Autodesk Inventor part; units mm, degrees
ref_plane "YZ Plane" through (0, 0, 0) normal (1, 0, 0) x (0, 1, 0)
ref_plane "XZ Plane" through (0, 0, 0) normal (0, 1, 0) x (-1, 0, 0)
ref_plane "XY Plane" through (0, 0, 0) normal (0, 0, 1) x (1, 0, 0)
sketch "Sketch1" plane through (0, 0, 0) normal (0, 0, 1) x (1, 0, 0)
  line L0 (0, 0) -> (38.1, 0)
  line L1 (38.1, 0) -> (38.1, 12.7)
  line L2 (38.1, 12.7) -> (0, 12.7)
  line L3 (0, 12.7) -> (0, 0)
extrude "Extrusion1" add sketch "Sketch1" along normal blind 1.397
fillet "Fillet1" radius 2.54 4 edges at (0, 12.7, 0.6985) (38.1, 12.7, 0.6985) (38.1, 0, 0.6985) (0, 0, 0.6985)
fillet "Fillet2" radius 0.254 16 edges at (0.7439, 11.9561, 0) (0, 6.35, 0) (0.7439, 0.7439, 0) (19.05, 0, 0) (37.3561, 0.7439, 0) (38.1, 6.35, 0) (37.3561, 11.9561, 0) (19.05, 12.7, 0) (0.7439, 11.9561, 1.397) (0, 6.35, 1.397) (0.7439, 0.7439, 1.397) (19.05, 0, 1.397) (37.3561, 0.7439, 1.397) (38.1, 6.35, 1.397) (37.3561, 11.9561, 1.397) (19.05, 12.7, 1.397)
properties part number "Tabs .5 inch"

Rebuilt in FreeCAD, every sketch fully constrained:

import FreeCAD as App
import Part
import Sketcher

V = App.Vector
Q = App.Units.Quantity


def edges_at(feature, points):
    """Names of the edges that pass closest to the given points."""
    edges = feature.Shape.Edges
    near = lambda p: min(range(len(edges)), key=lambda i: edges[i].distToShape(Part.Vertex(*p))[0])
    return sorted({f"Edge{near(p) + 1}" for p in points})

doc = App.newDocument("Part")
params = doc.addObject("Spreadsheet::Sheet", "Params")
for row, (alias, value) in enumerate([
    ("sketch1_width", "1.5 in"),
    ("sketch1_height", "0.5 in"),
    ("pad1_length", "0.055 in"),
    ("fillet_radius", "0.1 in"),
    ("fillet2_radius", "0.01 in"),
], start=1):
    params.set(f"A{row}", alias)
    params.set(f"B{row}", "=" + value)
    params.setAlias(f"B{row}", alias)

body = doc.addObject("PartDesign::Body", "Body")

sketch1 = body.newObject("Sketcher::SketchObject", "Sketch")
sketch1.AttachmentSupport = (doc.getObject("XY_Plane"), [""])
sketch1.MapMode = "FlatFace"
sketch1.addGeometry([
    Part.LineSegment(V(0, 13, 0), V(0, 0, 0)),
    Part.LineSegment(V(0, 0, 0), V(38, 0, 0)),
    Part.LineSegment(V(38, 0, 0), V(38, 13, 0)),
    Part.LineSegment(V(38, 13, 0), V(0, 13, 0)),
], False)
sketch1.addConstraint([
    Sketcher.Constraint("Coincident", 0, 2, 1, 1),
    Sketcher.Constraint("Coincident", 1, 2, 2, 1),
    Sketcher.Constraint("Coincident", 2, 2, 3, 1),
    Sketcher.Constraint("Coincident", 3, 2, 0, 1),
    Sketcher.Constraint("Vertical", 0),
    Sketcher.Constraint("Horizontal", 1),
    Sketcher.Constraint("Vertical", 2),
    Sketcher.Constraint("Horizontal", 3),
    Sketcher.Constraint("Coincident", 0, 2, -1, 1),
    Sketcher.Constraint("DistanceX", 1, 1, 1, 2, Q("1.5 in")),
    Sketcher.Constraint("DistanceY", 0, 2, 0, 1, Q("0.5 in")),
])
sketch1.setExpression("Constraints[9]", "Params.sketch1_width")
sketch1.setExpression("Constraints[10]", "Params.sketch1_height")
pad1 = body.newObject("PartDesign::Pad", "Pad")
pad1.Profile = sketch1
pad1.setExpression("Length", "Params.pad1_length")
doc.recompute()

fillet = body.newObject("PartDesign::Fillet", "Fillet")
fillet.Base = (pad1, edges_at(pad1, [
    (0, 12.7, 0.699),
    (38.1, 12.7, 0.699),
    (38.1, 0, 0.699),
    (0, 0, 0.699),
]))
fillet.setExpression("Radius", "Params.fillet_radius")
doc.recompute()

fillet2 = body.newObject("PartDesign::Fillet", "Fillet001")
fillet2.Base = (fillet, edges_at(fillet, [
    (0.744, 11.956, 0),
    (0, 6.35, 0),
    (0.744, 0.744, 0),
    (19.05, 0, 0),
    (37.356, 0.744, 0),
    (38.1, 6.35, 0),
    (37.356, 11.956, 0),
    (19.05, 12.7, 0),
    (0.744, 11.956, 1.397),
    (0, 6.35, 1.397),
    (0.744, 0.744, 1.397),
    (19.05, 0, 1.397),
    (37.356, 0.744, 1.397),
    (38.1, 6.35, 1.397),
    (37.356, 11.956, 1.397),
    (19.05, 12.7, 1.397),
]))
fillet2.setExpression("Radius", "Params.fillet2_radius")

doc.recompute()
